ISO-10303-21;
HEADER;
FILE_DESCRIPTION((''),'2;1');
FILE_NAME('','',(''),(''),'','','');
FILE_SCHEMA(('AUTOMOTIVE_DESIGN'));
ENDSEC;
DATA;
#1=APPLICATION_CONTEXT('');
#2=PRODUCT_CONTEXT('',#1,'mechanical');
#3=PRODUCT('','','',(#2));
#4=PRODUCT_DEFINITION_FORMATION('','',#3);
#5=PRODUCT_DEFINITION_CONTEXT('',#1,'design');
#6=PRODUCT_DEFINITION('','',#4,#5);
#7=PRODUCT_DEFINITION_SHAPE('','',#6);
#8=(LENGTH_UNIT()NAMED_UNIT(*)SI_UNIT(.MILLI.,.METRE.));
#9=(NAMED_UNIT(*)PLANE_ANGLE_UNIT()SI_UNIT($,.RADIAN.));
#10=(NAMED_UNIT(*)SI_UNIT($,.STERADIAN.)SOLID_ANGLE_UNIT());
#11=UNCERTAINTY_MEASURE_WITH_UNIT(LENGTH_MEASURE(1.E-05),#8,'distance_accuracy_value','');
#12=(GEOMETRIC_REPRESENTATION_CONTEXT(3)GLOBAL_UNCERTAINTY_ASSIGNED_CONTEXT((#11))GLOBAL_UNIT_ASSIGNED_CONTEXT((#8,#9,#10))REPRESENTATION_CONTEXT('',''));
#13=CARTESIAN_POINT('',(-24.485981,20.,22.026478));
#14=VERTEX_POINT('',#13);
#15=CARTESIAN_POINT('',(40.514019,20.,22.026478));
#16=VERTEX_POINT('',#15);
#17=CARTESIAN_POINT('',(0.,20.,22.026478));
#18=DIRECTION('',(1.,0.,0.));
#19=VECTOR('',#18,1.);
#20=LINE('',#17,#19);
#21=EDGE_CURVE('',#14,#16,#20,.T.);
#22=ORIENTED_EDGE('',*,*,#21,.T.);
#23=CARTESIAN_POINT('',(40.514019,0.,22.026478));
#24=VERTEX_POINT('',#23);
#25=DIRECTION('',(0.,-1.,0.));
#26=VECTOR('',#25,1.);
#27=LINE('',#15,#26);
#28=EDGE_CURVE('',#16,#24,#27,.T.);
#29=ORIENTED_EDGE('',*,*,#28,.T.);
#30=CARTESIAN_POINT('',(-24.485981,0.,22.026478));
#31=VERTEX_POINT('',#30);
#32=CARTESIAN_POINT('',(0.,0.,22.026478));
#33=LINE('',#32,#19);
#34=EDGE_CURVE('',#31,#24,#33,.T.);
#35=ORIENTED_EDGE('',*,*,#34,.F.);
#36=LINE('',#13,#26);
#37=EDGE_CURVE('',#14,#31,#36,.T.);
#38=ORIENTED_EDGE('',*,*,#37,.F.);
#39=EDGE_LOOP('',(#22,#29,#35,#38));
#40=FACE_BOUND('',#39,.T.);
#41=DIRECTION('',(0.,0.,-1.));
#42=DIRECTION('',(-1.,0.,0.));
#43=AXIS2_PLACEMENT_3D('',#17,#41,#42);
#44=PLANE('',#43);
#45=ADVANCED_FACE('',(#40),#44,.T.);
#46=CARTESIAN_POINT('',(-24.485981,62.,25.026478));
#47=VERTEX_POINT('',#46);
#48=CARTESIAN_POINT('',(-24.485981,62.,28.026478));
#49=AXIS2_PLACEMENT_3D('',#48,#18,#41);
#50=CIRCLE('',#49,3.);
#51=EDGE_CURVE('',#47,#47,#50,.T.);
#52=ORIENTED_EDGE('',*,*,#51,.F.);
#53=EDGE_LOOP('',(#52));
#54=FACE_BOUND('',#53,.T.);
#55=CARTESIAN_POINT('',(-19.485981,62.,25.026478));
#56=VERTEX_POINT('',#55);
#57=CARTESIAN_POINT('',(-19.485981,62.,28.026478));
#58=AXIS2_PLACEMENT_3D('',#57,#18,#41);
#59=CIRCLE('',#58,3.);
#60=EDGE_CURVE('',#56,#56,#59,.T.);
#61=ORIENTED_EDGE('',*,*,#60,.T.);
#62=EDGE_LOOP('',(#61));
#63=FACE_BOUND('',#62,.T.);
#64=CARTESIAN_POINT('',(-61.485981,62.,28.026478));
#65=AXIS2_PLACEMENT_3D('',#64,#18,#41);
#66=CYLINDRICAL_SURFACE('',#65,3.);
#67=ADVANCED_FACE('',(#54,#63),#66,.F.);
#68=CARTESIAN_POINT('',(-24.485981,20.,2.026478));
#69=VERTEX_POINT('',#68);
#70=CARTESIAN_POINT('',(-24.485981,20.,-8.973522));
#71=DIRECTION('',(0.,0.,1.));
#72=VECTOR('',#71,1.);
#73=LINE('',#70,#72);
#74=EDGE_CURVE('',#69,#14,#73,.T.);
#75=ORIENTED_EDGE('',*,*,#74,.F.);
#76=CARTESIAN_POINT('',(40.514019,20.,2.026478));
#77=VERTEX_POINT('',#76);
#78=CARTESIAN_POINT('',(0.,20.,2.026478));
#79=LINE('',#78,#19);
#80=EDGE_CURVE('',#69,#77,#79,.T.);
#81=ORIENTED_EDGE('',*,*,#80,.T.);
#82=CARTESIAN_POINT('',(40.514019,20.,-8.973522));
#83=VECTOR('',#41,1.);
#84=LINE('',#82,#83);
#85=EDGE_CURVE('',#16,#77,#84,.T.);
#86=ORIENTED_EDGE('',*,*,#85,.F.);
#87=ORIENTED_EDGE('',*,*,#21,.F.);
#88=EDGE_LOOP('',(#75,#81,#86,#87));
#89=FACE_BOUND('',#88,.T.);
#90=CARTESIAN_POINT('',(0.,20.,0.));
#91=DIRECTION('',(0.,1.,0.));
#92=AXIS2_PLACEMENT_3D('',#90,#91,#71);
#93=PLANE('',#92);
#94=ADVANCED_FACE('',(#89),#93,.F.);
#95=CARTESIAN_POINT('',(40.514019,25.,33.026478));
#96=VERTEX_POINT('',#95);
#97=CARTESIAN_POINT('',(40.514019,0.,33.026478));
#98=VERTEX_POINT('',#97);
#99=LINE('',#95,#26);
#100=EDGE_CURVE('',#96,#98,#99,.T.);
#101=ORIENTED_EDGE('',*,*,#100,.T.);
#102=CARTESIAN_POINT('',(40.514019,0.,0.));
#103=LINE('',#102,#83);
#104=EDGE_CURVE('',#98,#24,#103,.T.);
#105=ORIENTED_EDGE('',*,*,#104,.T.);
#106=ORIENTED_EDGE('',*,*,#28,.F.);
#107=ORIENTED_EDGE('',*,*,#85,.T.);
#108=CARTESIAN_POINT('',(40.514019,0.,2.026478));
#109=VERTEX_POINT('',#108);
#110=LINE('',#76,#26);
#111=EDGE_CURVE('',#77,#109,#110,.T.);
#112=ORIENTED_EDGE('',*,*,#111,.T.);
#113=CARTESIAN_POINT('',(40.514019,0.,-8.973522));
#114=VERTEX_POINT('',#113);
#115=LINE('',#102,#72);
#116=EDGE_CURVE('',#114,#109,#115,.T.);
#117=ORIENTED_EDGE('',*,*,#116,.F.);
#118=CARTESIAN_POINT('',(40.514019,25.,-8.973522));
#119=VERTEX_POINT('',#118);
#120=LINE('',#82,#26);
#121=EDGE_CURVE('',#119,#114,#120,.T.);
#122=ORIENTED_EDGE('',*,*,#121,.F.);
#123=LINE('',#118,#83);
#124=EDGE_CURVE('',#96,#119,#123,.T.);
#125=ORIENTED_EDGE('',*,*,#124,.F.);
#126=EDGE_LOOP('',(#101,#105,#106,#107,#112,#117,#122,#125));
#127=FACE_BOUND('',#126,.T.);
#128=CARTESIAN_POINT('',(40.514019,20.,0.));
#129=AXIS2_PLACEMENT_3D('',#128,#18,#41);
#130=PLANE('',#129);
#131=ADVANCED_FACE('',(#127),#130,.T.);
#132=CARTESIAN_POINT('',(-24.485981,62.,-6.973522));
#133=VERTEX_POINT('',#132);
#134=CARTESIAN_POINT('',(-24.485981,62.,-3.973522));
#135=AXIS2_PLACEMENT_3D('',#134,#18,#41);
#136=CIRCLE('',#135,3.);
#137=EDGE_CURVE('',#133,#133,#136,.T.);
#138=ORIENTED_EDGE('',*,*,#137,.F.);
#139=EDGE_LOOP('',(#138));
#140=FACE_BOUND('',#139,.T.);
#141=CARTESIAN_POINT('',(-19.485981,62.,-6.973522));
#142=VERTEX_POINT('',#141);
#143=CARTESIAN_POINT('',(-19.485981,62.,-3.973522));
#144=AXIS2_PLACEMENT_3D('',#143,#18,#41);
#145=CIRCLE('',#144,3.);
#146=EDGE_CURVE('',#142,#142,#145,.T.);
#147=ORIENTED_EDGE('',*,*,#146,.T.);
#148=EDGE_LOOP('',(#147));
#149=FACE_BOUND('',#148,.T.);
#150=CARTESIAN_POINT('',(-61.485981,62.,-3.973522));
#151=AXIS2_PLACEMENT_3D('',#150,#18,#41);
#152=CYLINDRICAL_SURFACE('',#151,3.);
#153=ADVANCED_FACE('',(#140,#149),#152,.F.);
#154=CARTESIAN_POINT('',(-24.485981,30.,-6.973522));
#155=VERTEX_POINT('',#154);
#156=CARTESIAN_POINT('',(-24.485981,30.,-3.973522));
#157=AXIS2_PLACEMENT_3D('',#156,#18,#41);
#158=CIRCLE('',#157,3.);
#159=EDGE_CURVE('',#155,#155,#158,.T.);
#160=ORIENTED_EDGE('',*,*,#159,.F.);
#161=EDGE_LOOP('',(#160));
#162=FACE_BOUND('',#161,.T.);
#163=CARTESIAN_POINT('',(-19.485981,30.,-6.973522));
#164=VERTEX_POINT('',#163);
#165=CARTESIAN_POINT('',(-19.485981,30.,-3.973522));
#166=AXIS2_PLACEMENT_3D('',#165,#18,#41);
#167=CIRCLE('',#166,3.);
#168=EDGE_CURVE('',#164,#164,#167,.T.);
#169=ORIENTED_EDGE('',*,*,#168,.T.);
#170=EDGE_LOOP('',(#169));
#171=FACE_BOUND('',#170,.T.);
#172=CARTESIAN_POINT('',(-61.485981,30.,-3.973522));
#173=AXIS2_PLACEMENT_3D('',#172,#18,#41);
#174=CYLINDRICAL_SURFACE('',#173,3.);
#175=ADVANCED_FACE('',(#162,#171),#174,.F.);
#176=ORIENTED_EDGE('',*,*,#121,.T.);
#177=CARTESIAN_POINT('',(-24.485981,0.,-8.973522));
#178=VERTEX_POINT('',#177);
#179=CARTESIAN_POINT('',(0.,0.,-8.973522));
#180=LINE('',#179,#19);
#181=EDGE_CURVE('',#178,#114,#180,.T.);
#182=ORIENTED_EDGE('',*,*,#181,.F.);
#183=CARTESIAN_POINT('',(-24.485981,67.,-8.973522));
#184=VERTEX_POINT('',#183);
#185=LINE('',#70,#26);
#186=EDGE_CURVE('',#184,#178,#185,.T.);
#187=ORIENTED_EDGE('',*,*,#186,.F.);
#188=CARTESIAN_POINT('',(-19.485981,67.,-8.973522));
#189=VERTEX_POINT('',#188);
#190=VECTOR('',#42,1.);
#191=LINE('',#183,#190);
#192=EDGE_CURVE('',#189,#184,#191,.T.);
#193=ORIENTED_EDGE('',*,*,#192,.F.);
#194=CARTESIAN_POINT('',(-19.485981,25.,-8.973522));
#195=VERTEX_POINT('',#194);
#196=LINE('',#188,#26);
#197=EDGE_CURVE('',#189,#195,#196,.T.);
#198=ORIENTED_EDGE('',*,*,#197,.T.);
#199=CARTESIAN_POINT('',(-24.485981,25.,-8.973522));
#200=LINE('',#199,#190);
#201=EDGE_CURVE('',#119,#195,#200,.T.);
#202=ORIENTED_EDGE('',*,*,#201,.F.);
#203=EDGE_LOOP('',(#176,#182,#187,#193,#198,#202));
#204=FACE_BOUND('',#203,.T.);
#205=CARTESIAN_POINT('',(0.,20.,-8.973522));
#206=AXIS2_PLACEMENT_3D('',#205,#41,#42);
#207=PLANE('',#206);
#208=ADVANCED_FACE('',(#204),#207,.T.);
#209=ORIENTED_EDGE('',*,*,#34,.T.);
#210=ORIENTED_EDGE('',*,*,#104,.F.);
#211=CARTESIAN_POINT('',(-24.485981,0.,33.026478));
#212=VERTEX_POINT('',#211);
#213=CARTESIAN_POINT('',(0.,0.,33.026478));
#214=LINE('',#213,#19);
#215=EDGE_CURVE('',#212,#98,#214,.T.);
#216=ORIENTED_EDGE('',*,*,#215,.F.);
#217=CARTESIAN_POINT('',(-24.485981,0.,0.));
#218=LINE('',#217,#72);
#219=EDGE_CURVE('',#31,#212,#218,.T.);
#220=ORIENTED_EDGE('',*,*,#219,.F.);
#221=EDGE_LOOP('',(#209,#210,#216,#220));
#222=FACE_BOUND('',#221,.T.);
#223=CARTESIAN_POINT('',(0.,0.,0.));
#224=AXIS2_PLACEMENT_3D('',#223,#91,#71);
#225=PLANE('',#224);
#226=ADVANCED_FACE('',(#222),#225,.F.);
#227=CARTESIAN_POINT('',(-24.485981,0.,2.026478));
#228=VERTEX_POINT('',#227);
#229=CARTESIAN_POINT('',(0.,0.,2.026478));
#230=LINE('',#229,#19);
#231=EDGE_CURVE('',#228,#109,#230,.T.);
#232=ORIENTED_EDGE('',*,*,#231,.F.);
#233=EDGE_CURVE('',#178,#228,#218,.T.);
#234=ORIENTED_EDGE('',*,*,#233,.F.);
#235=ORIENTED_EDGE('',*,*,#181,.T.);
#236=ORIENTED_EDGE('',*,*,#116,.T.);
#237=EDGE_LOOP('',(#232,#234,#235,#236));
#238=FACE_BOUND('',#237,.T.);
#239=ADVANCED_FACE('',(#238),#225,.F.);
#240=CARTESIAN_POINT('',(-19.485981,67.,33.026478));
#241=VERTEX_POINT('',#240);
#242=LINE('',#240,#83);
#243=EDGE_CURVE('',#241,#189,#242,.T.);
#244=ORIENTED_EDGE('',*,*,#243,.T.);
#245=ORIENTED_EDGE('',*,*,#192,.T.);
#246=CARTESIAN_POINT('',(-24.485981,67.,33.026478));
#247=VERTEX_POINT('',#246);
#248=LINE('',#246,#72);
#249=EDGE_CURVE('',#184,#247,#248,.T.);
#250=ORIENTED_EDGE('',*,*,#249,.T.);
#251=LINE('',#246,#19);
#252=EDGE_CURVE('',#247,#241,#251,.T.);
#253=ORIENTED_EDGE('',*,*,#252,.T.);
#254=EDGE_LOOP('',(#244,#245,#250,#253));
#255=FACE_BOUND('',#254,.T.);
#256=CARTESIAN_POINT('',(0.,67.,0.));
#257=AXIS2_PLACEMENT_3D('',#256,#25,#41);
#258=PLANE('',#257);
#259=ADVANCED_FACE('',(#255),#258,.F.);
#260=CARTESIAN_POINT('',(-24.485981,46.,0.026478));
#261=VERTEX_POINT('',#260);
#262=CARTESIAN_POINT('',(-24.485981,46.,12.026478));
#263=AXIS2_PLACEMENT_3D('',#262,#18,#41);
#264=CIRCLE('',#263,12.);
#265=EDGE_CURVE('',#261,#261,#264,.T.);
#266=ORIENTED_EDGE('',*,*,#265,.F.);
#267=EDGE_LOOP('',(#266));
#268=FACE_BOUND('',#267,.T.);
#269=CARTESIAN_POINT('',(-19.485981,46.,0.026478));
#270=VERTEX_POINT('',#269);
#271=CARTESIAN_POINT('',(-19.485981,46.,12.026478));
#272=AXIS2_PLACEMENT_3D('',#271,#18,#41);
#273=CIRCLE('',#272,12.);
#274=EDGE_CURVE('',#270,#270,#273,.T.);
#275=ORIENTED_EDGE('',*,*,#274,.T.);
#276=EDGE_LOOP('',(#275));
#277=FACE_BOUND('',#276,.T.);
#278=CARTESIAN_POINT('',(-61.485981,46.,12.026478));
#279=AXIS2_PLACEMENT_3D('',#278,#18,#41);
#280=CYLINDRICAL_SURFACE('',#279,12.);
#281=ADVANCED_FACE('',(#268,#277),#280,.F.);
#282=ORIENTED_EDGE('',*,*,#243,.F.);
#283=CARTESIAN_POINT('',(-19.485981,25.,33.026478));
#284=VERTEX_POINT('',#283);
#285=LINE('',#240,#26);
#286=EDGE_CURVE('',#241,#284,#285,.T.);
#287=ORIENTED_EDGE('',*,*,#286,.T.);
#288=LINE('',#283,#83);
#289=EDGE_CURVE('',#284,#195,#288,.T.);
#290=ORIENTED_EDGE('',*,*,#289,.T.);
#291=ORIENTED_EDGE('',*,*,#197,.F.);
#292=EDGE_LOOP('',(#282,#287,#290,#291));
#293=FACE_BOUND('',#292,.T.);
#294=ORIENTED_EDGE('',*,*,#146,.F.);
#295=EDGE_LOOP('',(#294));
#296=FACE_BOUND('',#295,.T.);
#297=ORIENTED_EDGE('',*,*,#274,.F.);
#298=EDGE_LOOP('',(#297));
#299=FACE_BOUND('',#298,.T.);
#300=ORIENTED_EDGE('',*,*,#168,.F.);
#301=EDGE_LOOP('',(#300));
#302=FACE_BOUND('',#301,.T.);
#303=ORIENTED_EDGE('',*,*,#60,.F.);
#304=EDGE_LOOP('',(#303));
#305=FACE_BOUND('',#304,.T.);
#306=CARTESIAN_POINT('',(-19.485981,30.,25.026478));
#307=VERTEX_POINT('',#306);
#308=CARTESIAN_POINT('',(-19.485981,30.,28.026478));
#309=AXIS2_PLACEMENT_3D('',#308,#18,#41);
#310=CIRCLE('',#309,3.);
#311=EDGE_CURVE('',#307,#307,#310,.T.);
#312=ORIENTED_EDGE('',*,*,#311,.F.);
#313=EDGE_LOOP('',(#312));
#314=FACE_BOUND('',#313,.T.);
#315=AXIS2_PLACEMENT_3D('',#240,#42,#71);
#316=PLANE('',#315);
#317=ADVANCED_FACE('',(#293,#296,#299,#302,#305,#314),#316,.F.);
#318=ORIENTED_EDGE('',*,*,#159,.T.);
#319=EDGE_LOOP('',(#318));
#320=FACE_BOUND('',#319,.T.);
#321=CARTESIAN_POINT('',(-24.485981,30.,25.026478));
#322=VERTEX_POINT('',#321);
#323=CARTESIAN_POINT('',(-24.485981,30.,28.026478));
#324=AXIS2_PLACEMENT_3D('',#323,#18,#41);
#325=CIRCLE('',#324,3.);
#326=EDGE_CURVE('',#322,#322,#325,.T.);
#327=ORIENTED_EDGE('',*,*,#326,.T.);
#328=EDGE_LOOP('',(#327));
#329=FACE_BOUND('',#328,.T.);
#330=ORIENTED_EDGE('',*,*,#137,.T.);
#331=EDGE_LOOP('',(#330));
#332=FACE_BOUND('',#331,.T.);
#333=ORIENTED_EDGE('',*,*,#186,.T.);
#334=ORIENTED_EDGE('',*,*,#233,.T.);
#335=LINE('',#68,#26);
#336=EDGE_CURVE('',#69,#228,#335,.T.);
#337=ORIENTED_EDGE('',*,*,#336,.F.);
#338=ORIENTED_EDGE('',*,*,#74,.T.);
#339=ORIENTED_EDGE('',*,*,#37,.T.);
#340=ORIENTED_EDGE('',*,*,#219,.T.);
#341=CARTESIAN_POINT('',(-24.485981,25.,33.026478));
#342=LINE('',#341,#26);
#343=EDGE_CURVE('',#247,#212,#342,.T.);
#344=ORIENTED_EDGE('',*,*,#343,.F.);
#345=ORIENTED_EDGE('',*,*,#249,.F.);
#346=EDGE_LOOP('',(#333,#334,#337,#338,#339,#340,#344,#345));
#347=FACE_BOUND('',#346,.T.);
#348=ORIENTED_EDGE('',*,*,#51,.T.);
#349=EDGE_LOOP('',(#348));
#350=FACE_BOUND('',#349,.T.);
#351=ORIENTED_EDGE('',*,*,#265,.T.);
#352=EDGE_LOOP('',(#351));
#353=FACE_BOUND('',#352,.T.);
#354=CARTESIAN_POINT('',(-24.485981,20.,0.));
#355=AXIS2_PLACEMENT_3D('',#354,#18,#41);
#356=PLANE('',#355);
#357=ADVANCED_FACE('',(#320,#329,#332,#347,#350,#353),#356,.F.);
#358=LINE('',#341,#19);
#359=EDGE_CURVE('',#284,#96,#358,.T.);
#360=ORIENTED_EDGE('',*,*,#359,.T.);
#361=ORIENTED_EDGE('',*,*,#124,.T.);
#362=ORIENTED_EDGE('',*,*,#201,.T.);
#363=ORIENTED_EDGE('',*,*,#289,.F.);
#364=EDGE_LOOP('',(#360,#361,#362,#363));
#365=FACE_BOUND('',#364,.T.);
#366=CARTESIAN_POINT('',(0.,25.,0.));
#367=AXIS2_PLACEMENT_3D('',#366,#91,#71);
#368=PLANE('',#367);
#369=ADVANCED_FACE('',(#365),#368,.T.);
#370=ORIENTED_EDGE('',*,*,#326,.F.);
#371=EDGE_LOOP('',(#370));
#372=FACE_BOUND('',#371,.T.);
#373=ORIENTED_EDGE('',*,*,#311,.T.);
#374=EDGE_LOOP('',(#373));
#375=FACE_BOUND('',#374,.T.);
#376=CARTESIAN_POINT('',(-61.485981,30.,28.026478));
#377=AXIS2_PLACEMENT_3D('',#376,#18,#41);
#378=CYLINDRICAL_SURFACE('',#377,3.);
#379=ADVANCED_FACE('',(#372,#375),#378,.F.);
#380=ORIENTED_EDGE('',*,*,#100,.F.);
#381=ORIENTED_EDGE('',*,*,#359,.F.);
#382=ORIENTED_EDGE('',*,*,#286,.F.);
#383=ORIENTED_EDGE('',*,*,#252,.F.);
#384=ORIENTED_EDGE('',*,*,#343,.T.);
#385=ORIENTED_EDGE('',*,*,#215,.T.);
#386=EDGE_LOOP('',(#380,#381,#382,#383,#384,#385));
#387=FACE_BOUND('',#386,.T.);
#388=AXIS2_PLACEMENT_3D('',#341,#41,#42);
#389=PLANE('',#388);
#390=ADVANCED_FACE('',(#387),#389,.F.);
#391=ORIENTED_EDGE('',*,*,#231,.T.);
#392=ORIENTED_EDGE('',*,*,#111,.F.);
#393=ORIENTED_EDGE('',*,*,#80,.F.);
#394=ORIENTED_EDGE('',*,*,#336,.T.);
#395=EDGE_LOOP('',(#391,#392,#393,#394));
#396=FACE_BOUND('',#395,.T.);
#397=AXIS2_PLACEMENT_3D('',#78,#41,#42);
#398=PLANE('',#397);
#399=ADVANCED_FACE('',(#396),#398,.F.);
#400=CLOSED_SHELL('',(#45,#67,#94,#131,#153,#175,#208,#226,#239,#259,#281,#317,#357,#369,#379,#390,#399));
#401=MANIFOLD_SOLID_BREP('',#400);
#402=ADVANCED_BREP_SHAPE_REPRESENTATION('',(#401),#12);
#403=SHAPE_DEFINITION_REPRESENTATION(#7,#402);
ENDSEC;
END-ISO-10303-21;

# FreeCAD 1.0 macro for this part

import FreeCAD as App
import Part
import Sketcher
Q = App.Units.Quantity

doc = App.newDocument("Part")
body = doc.addObject("PartDesign::Body", "Body")

sketch1 = doc.addObject("Sketcher::SketchObject", "Sketch")
body.addObject(sketch1)
sketch1.AttachmentSupport = (doc.XZ_Plane, [""])
sketch1.MapMode = "FlatFace"
sketch1.addGeometry([
    Part.LineSegment(App.Vector(-24, -9, 0), App.Vector(-24, 2, 0)),
    Part.LineSegment(App.Vector(-24, 2, 0), App.Vector(41, 2, 0)),
    Part.LineSegment(App.Vector(41, 2, 0), App.Vector(41, -9, 0)),
    Part.LineSegment(App.Vector(41, -9, 0), App.Vector(-24, -9, 0)),
], False)
sketch1.addConstraint([
    Sketcher.Constraint("Coincident", 0, 2, 1, 1),
    Sketcher.Constraint("Coincident", 1, 2, 2, 1),
    Sketcher.Constraint("Coincident", 2, 2, 3, 1),
    Sketcher.Constraint("Coincident", 3, 2, 0, 1),
    Sketcher.Constraint("Vertical", 0),
    Sketcher.Constraint("Horizontal", 1),
    Sketcher.Constraint("Vertical", 2),
    Sketcher.Constraint("Horizontal", 3),
    Sketcher.Constraint("DistanceX", 1, 1, 1, 2, Q("65 mm")),
    Sketcher.Constraint("DistanceY", 0, 1, 0, 2, Q("11 mm")),
    Sketcher.Constraint("DistanceX", 0, 2, -1, 1, Q("24.485981 mm")),
    Sketcher.Constraint("DistanceY", -1, 1, 0, 2, Q("2.026478 mm")),
])
pad1 = doc.addObject("PartDesign::Pad", "Pad")
body.addObject(pad1)
pad1.Profile = sketch1
pad1.Length = 20
pad1.Reversed = True
body2 = doc.addObject("PartDesign::Body", "Body001")

sketch2 = doc.addObject("Sketcher::SketchObject", "Sketch001")
body2.addObject(sketch2)
sketch2.AttachmentSupport = (doc.getObject("XZ_Plane001"), [""])
sketch2.MapMode = "FlatFace"
sketch2.addGeometry([
    Part.LineSegment(App.Vector(-24, 22, 0), App.Vector(-24, 33, 0)),
    Part.LineSegment(App.Vector(-24, 33, 0), App.Vector(41, 33, 0)),
    Part.LineSegment(App.Vector(41, 33, 0), App.Vector(41, 22, 0)),
    Part.LineSegment(App.Vector(41, 22, 0), App.Vector(-24, 22, 0)),
], False)
sketch2.addConstraint([
    Sketcher.Constraint("Coincident", 0, 2, 1, 1),
    Sketcher.Constraint("Coincident", 1, 2, 2, 1),
    Sketcher.Constraint("Coincident", 2, 2, 3, 1),
    Sketcher.Constraint("Coincident", 3, 2, 0, 1),
    Sketcher.Constraint("Vertical", 0),
    Sketcher.Constraint("Horizontal", 1),
    Sketcher.Constraint("Vertical", 2),
    Sketcher.Constraint("Horizontal", 3),
    Sketcher.Constraint("DistanceX", 1, 1, 1, 2, Q("65 mm")),
    Sketcher.Constraint("DistanceY", 0, 1, 0, 2, Q("11 mm")),
    Sketcher.Constraint("DistanceX", 0, 2, -1, 1, Q("24.485981 mm")),
    Sketcher.Constraint("DistanceY", -1, 1, 0, 2, Q("33.026478 mm")),
])
pad2 = doc.addObject("PartDesign::Pad", "Pad001")
body2.addObject(pad2)
pad2.Profile = sketch2
pad2.Length = 20
pad2.Reversed = True
body.AllowCompound = True
doc.recompute()

boolean = doc.addObject("PartDesign::Boolean", "Boolean")
body.addObject(boolean)
boolean.Type = "Fuse"
boolean.addObjects([body2])

sketch3 = doc.addObject("Sketcher::SketchObject", "Sketch002")
body.addObject(sketch3)
sketch3.AttachmentSupport = (doc.XZ_Plane, [""])
sketch3.MapMode = "FlatFace"
sketch3.AttachmentOffset = App.Placement(App.Vector(0, 0, -20), App.Rotation())
sketch3.addGeometry([
    Part.LineSegment(App.Vector(-24, -9, 0), App.Vector(-24, 33, 0)),
    Part.LineSegment(App.Vector(-24, 33, 0), App.Vector(41, 33, 0)),
    Part.LineSegment(App.Vector(41, 33, 0), App.Vector(41, -9, 0)),
    Part.LineSegment(App.Vector(41, -9, 0), App.Vector(-24, -9, 0)),
], False)
sketch3.addConstraint([
    Sketcher.Constraint("Coincident", 0, 2, 1, 1),
    Sketcher.Constraint("Coincident", 1, 2, 2, 1),
    Sketcher.Constraint("Coincident", 2, 2, 3, 1),
    Sketcher.Constraint("Coincident", 3, 2, 0, 1),
    Sketcher.Constraint("Vertical", 0),
    Sketcher.Constraint("Horizontal", 1),
    Sketcher.Constraint("Vertical", 2),
    Sketcher.Constraint("Horizontal", 3),
    Sketcher.Constraint("DistanceX", 1, 1, 1, 2, Q("65 mm")),
    Sketcher.Constraint("DistanceY", 0, 1, 0, 2, Q("42 mm")),
    Sketcher.Constraint("DistanceX", 0, 2, -1, 1, Q("24.485981 mm")),
    Sketcher.Constraint("DistanceY", -1, 1, 0, 2, Q("33.026478 mm")),
])
pad3 = doc.addObject("PartDesign::Pad", "Pad002")
body.addObject(pad3)
pad3.Profile = sketch3
pad3.Length = 5
pad3.Reversed = True

sketch4 = doc.addObject("Sketcher::SketchObject", "Sketch003")
body.addObject(sketch4)
sketch4.AttachmentSupport = (doc.XZ_Plane, [""])
sketch4.MapMode = "FlatFace"
sketch4.AttachmentOffset = App.Placement(App.Vector(0, 0, -25), App.Rotation())
sketch4.addGeometry([
    Part.LineSegment(App.Vector(-24, -9, 0), App.Vector(-24, 33, 0)),
    Part.LineSegment(App.Vector(-24, 33, 0), App.Vector(-19, 33, 0)),
    Part.LineSegment(App.Vector(-19, 33, 0), App.Vector(-19, -9, 0)),
    Part.LineSegment(App.Vector(-19, -9, 0), App.Vector(-24, -9, 0)),
], False)
sketch4.addConstraint([
    Sketcher.Constraint("Coincident", 0, 2, 1, 1),
    Sketcher.Constraint("Coincident", 1, 2, 2, 1),
    Sketcher.Constraint("Coincident", 2, 2, 3, 1),
    Sketcher.Constraint("Coincident", 3, 2, 0, 1),
    Sketcher.Constraint("Vertical", 0),
    Sketcher.Constraint("Horizontal", 1),
    Sketcher.Constraint("Vertical", 2),
    Sketcher.Constraint("Horizontal", 3),
    Sketcher.Constraint("DistanceX", 1, 1, 1, 2, Q("5 mm")),
    Sketcher.Constraint("DistanceY", 0, 1, 0, 2, Q("42 mm")),
    Sketcher.Constraint("DistanceX", 0, 2, -1, 1, Q("24.485981 mm")),
    Sketcher.Constraint("DistanceY", -1, 1, 0, 2, Q("33.026478 mm")),
])
pad4 = doc.addObject("PartDesign::Pad", "Pad003")
body.addObject(pad4)
pad4.Profile = sketch4
pad4.Length = 42
pad4.Reversed = True

sketch5 = doc.addObject("Sketcher::SketchObject", "Sketch004")
body.addObject(sketch5)
sketch5.AttachmentSupport = (doc.YZ_Plane, [""])
sketch5.MapMode = "FlatFace"
sketch5.AttachmentOffset = App.Placement(App.Vector(0, 0, -19.485981), App.Rotation())
sketch5.addGeometry([
    Part.Circle(App.Vector(46, 12, 0), App.Vector(0, 0, 1), 12),
    Part.Circle(App.Vector(62, 28, 0), App.Vector(0, 0, 1), 3),
    Part.Circle(App.Vector(62, -4, 0), App.Vector(0, 0, 1), 3),
    Part.Circle(App.Vector(30, -4, 0), App.Vector(0, 0, 1), 3),
    Part.Circle(App.Vector(30, 28, 0), App.Vector(0, 0, 1), 3),
], False)
sketch5.addConstraint([
    Sketcher.Constraint("Equal", 1, 2),
    Sketcher.Constraint("Equal", 2, 3),
    Sketcher.Constraint("Equal", 3, 4),
    Sketcher.Constraint("Horizontal", 2, 3, 3, 3),
    Sketcher.Constraint("Horizontal", 1, 3, 4, 3),
    Sketcher.Constraint("Vertical", 1, 3, 2, 3),
    Sketcher.Constraint("Vertical", 3, 3, 4, 3),
    Sketcher.Constraint("Diameter", 0, Q("24 mm")),
    Sketcher.Constraint("Diameter", 1, Q("6 mm")),
    Sketcher.Constraint("DistanceX", -1, 1, 0, 3, Q("46 mm")),
    Sketcher.Constraint("DistanceX", -1, 1, 1, 3, Q("62 mm")),
    Sketcher.Constraint("DistanceX", -1, 1, 3, 3, Q("30 mm")),
    Sketcher.Constraint("DistanceY", 0, 3, 1, 3, Q("16 mm")),
    Sketcher.Constraint("DistanceY", 2, 3, 0, 3, Q("16 mm")),
    Sketcher.Constraint("DistanceY", -1, 1, 0, 3, Q("12.026478 mm")),
])
pocket1 = doc.addObject("PartDesign::Pocket", "Pocket")
body.addObject(pocket1)
pocket1.Profile = sketch5
pocket1.Length = 42

doc.recompute()
